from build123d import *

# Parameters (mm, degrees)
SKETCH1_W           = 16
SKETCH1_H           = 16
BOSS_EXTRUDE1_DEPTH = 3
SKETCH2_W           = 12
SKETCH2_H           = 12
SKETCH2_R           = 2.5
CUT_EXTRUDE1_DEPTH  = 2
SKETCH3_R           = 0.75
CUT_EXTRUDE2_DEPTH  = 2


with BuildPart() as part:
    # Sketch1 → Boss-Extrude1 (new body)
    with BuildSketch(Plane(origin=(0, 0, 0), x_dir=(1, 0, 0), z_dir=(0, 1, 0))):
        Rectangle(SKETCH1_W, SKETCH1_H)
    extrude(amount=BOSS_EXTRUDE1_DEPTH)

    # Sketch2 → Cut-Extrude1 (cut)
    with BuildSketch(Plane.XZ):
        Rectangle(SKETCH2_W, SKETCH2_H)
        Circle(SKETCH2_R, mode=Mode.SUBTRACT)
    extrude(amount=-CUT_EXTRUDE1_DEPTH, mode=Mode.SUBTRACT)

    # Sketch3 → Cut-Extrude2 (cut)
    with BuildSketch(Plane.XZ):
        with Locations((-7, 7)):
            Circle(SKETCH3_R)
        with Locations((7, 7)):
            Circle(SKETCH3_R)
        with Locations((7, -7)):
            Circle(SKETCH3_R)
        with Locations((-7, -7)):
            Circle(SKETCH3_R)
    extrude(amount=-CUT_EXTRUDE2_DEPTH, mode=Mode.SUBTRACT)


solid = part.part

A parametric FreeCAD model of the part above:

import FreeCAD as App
import Part
import Sketcher

doc = App.newDocument("Part")
body = doc.addObject("PartDesign::Body", "Body")

# Sketch on XZ plane
sketch1 = body.newObject("Sketcher::SketchObject", "Sketch")
sketch1.AttachmentSupport = (doc.getObject("XZ_Plane"), [""])
sketch1.MapMode = "FlatFace"
sketch1.addGeometry([
    Part.LineSegment(App.Vector(-8, -8, 0), App.Vector(-8, 8, 0)),
    Part.LineSegment(App.Vector(-8, 8, 0), App.Vector(8, 8, 0)),
    Part.LineSegment(App.Vector(8, 8, 0), App.Vector(8, -8, 0)),
    Part.LineSegment(App.Vector(8, -8, 0), App.Vector(-8, -8, 0)),
], False)
sketch1.addConstraint([
    Sketcher.Constraint("Coincident", 0, 2, 1, 1),
    Sketcher.Constraint("Coincident", 1, 2, 2, 1),
    Sketcher.Constraint("Coincident", 2, 2, 3, 1),
    Sketcher.Constraint("Coincident", 3, 2, 0, 1),
    Sketcher.Constraint("Vertical", 0),
    Sketcher.Constraint("Horizontal", 1),
    Sketcher.Constraint("Vertical", 2),
    Sketcher.Constraint("Horizontal", 3),
    Sketcher.Constraint("Symmetric", 0, 2, 2, 2, -1, 1),
    Sketcher.Constraint("Equal", 3, 0),
    Sketcher.Constraint("DistanceX", 1, 1, 1, 2, 16.0),
])
pad1 = body.newObject("PartDesign::Pad", "Pad")
pad1.Profile = sketch1
pad1.Length = 3
pad1.Reversed = True

# Sketch on XZ plane
sketch2 = body.newObject("Sketcher::SketchObject", "Sketch001")
sketch2.AttachmentSupport = (doc.getObject("XZ_Plane"), [""])
sketch2.MapMode = "FlatFace"
sketch2.addGeometry([
    Part.LineSegment(App.Vector(-6, 6, 0), App.Vector(-6, -6, 0)),  # 0
    Part.LineSegment(App.Vector(-6, -6, 0), App.Vector(6, -6, 0)),  # 1
    Part.LineSegment(App.Vector(6, -6, 0), App.Vector(6, 6, 0)),  # 2
    Part.LineSegment(App.Vector(6, 6, 0), App.Vector(-6, 6, 0)),  # 3
    Part.Circle(App.Vector(0, 0, 0), App.Vector(0, 0, 1), 2.5),  # 4
], False)
sketch2.addConstraint([
    Sketcher.Constraint("Coincident", 0, 2, 1, 1),
    Sketcher.Constraint("Coincident", 1, 2, 2, 1),
    Sketcher.Constraint("Coincident", 2, 2, 3, 1),
    Sketcher.Constraint("Coincident", 3, 2, 0, 1),
    Sketcher.Constraint("Vertical", 0),
    Sketcher.Constraint("Horizontal", 1),
    Sketcher.Constraint("Vertical", 2),
    Sketcher.Constraint("Horizontal", 3),
    Sketcher.Constraint("Coincident", 4, 3, -1, 1),
    Sketcher.Constraint("Symmetric", 0, 2, 2, 2, -1, 1),
    Sketcher.Constraint("Equal", 3, 0),
    Sketcher.Constraint("Diameter", 4, 5.0),
    Sketcher.Constraint("DistanceX", 1, 1, 1, 2, 12.0),
])
pocket1 = body.newObject("PartDesign::Pocket", "Pocket")
pocket1.Profile = sketch2
pocket1.Length = 2

# Sketch on XZ plane
sketch3 = body.newObject("Sketcher::SketchObject", "Sketch002")
sketch3.AttachmentSupport = (doc.getObject("XZ_Plane"), [""])
sketch3.MapMode = "FlatFace"
sketch3.addGeometry([
    Part.Circle(App.Vector(-7, 7, 0), App.Vector(0, 0, 1), 0.8),
    Part.Circle(App.Vector(7, 7, 0), App.Vector(0, 0, 1), 0.8),
    Part.Circle(App.Vector(7, -7, 0), App.Vector(0, 0, 1), 0.8),
    Part.Circle(App.Vector(-7, -7, 0), App.Vector(0, 0, 1), 0.8),
], False)
sketch3.addConstraint([
    Sketcher.Constraint("Equal", 0, 1),
    Sketcher.Constraint("Equal", 1, 2),
    Sketcher.Constraint("Equal", 2, 3),
    Sketcher.Constraint("Symmetric", 0, 3, 2, 3, -1, 1),
    Sketcher.Constraint("Symmetric", 1, 3, 3, 3, -1, 1),
    Sketcher.Constraint("Symmetric", 0, 3, 1, 3, -2),
    Sketcher.Constraint("Diameter", 0, 1.5),
    Sketcher.Constraint("DistanceX", 0, 3, -1, 1, 7.0),
    Sketcher.Constraint("DistanceY", -1, 1, 0, 3, 7.0),
])
pocket2 = body.newObject("PartDesign::Pocket", "Pocket001")
pocket2.Profile = sketch3
pocket2.Length = 2

doc.recompute()
